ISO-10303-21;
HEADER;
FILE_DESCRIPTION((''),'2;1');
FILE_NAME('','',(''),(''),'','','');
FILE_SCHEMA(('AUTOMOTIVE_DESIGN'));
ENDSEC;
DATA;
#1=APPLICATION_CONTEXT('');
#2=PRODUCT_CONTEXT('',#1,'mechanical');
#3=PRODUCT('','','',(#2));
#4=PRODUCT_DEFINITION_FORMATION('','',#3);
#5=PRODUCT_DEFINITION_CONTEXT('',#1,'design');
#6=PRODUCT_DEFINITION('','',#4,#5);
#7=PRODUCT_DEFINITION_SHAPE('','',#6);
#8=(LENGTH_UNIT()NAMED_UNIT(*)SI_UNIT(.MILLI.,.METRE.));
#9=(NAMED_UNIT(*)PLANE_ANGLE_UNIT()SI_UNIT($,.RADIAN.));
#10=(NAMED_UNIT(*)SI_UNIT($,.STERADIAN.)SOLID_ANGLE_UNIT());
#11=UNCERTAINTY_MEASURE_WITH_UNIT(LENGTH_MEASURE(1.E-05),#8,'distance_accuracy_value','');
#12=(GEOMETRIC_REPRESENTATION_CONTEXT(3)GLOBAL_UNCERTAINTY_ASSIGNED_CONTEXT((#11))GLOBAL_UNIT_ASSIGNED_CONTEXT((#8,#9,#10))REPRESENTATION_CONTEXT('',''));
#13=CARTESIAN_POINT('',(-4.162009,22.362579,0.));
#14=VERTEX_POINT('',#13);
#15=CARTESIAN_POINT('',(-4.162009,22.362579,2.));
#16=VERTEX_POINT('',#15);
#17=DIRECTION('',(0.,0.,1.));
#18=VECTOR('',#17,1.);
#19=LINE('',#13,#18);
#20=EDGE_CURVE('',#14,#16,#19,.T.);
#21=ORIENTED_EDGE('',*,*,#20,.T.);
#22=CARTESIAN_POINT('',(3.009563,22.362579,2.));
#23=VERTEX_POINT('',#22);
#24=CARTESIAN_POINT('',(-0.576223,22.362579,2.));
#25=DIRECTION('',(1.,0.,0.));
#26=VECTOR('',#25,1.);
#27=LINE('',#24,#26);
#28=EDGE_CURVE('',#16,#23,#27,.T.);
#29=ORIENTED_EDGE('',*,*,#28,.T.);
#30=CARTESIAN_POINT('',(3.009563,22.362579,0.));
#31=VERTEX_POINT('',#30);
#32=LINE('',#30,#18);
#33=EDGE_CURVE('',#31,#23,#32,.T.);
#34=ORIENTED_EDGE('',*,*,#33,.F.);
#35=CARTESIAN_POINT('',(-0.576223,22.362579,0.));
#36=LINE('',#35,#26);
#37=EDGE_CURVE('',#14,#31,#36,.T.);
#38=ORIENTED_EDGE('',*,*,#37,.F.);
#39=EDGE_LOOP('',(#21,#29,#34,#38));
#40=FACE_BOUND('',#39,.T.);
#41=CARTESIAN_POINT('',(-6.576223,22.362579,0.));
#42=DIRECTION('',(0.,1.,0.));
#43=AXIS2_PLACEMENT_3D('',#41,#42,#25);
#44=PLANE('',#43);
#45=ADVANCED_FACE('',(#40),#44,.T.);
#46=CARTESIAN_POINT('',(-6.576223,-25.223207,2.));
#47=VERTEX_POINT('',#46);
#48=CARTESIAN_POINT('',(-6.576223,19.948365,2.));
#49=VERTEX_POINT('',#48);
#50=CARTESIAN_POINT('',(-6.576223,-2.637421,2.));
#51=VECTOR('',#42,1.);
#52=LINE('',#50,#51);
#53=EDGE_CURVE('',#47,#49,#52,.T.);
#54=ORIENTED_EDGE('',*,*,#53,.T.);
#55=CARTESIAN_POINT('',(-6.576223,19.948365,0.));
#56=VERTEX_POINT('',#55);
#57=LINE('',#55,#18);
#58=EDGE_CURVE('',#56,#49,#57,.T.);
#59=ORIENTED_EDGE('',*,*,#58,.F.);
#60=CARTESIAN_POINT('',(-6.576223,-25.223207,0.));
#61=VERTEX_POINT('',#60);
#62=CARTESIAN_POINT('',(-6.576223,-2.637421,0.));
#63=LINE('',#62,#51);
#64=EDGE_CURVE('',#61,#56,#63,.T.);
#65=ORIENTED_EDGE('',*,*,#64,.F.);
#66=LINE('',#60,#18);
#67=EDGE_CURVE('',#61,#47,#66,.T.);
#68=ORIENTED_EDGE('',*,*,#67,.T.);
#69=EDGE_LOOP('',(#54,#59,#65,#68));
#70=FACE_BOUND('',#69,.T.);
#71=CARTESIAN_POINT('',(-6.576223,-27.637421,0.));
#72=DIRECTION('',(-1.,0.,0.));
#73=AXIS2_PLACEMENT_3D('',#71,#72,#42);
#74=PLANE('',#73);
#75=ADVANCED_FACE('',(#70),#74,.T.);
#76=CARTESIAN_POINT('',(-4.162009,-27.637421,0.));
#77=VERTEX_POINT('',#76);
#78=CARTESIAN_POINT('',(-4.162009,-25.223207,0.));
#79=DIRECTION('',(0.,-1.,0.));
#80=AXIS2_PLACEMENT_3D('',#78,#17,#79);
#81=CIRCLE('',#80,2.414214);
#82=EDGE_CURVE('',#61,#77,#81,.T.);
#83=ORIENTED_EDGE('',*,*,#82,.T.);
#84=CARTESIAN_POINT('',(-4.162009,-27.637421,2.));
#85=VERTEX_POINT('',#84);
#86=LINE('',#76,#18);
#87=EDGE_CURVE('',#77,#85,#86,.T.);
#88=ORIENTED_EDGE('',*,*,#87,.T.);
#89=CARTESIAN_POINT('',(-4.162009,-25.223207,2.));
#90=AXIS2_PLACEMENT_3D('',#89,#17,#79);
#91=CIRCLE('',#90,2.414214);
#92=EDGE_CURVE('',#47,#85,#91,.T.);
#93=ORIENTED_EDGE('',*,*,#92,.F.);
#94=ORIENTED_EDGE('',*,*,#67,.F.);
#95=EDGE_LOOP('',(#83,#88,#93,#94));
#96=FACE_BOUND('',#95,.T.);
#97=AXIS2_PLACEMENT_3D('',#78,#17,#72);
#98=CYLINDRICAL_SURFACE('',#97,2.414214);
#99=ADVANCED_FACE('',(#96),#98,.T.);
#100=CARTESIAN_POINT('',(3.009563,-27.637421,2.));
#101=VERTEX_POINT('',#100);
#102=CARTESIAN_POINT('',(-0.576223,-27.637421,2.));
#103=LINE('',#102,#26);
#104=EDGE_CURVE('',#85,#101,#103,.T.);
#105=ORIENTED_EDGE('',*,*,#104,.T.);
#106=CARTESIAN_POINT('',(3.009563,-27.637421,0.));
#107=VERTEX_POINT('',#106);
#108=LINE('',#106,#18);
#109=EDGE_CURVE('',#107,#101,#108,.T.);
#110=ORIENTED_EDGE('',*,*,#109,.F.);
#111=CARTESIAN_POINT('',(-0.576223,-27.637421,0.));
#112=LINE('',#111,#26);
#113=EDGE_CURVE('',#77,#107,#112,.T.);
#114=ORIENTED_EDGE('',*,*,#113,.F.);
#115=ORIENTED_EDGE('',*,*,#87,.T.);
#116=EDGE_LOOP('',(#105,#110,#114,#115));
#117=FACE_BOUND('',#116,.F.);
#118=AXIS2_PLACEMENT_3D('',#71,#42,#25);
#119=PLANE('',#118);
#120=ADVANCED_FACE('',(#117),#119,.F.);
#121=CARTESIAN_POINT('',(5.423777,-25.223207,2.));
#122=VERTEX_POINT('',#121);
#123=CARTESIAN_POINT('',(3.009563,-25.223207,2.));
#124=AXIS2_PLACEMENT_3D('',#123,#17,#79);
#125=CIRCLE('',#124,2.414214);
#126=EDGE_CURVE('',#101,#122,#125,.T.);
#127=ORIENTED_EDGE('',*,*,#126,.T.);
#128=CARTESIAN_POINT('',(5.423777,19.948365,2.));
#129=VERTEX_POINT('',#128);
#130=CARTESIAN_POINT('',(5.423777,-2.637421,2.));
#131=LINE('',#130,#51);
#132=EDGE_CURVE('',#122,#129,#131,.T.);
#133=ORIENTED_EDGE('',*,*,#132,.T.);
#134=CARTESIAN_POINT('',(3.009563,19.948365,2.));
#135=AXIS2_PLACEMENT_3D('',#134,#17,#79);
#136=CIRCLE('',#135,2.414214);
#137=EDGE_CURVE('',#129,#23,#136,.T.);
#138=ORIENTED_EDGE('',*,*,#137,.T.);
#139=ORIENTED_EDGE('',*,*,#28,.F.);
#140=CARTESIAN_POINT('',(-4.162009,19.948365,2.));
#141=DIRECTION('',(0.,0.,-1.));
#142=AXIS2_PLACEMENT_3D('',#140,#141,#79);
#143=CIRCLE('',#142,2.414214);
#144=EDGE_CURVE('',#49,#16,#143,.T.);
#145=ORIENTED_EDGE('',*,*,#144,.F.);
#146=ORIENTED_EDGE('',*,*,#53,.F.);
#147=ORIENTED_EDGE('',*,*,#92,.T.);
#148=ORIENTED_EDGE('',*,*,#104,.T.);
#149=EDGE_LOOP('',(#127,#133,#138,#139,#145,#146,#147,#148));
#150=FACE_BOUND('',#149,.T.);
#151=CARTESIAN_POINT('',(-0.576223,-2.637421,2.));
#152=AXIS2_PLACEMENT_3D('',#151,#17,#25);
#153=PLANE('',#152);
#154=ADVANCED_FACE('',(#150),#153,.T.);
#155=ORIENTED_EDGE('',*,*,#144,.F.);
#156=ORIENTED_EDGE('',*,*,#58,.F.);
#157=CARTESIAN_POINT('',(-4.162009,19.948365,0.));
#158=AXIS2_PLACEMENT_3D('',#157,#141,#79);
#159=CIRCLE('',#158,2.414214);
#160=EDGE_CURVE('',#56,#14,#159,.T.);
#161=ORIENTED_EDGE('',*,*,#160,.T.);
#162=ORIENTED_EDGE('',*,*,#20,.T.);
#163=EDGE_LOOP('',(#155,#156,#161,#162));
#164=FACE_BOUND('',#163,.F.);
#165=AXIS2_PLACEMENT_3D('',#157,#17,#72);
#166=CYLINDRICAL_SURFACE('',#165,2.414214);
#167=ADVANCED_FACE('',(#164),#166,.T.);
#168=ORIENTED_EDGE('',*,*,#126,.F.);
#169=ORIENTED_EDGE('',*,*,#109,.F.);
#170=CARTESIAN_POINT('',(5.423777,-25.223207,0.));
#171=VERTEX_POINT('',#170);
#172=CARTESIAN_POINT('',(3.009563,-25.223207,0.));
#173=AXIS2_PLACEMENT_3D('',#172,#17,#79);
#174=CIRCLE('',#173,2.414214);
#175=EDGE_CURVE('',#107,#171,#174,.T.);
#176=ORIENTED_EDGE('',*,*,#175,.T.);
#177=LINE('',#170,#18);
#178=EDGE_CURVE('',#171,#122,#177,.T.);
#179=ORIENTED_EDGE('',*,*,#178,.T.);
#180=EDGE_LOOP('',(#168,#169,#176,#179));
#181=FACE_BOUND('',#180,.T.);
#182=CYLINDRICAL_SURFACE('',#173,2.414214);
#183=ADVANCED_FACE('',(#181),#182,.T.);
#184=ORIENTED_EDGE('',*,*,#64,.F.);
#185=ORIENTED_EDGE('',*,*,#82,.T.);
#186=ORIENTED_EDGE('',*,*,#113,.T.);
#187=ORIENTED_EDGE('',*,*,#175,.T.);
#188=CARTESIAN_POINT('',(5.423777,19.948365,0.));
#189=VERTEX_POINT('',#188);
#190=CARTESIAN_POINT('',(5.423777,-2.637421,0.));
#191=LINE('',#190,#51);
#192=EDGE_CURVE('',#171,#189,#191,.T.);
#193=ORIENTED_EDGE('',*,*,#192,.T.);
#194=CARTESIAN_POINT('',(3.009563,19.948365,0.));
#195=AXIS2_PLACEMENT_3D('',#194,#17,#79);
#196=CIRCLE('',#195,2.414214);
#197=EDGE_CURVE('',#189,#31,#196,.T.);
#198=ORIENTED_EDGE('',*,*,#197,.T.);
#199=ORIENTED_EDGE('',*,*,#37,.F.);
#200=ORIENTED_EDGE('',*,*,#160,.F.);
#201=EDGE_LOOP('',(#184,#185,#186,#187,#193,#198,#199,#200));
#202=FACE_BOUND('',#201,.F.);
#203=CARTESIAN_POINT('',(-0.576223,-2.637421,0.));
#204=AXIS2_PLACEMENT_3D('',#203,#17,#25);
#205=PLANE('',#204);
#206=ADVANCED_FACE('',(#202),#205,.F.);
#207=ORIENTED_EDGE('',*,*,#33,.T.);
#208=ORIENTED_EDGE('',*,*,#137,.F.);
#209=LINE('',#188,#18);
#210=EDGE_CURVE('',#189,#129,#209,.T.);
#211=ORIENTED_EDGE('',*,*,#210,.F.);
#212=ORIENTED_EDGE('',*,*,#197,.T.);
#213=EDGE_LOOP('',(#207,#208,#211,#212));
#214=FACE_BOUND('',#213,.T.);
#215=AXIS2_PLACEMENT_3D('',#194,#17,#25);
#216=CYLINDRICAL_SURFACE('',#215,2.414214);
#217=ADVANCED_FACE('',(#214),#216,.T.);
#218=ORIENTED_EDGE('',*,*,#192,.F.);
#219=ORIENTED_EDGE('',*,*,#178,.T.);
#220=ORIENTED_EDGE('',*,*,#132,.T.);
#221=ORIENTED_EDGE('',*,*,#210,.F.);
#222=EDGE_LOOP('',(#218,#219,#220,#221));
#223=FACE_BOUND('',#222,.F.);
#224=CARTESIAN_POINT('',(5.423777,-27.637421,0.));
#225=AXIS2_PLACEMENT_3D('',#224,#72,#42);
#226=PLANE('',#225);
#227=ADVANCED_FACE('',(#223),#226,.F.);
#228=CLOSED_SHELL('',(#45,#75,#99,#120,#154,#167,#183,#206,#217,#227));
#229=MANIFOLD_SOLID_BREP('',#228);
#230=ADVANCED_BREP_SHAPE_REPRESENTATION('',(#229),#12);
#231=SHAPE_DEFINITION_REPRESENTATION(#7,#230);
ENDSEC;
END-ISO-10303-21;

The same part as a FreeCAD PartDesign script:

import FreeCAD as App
import Part
import Sketcher


def edges_at(feature, points):
    """Names of the edges that pass closest to the given points."""
    edges = feature.Shape.Edges
    near = lambda p: min(range(len(edges)), key=lambda i: edges[i].distToShape(Part.Vertex(*p))[0])
    return sorted({f"Edge{near(p) + 1}" for p in points})

doc = App.newDocument("Part")
params = doc.addObject("Spreadsheet::Sheet", "Params")
for row, (alias, value) in enumerate([
    ("sketch1_width", "12 mm"),
    ("sketch1_height", "50 mm"),
    ("pad1_length", "2 mm"),
    ("fillet_radius", "2.414214 mm"),
], start=1):
    params.set(f"A{row}", alias)
    params.set(f"B{row}", "=" + value)
    params.setAlias(f"B{row}", alias)

body = doc.addObject("PartDesign::Body", "Body")

# Sketch on XY plane
sketch1 = doc.addObject("Sketcher::SketchObject", "Sketch")
body.addObject(sketch1)
sketch1.AttachmentSupport = (doc.XY_Plane, [""])
sketch1.MapMode = "FlatFace"
sketch1.addGeometry(Part.LineSegment(App.Vector(-7, 22, 0), App.Vector(-7, -28, 0)), False)
sketch1.addGeometry(Part.LineSegment(App.Vector(-7, -28, 0), App.Vector(5, -28, 0)), False)
sketch1.addGeometry(Part.LineSegment(App.Vector(5, -28, 0), App.Vector(5, 22, 0)), False)
sketch1.addGeometry(Part.LineSegment(App.Vector(5, 22, 0), App.Vector(-7, 22, 0)), False)
sketch1.addConstraint(Sketcher.Constraint("Coincident", 0, 2, 1, 1))
sketch1.addConstraint(Sketcher.Constraint("Coincident", 1, 2, 2, 1))
sketch1.addConstraint(Sketcher.Constraint("Coincident", 2, 2, 3, 1))
sketch1.addConstraint(Sketcher.Constraint("Coincident", 3, 2, 0, 1))
sketch1.addConstraint(Sketcher.Constraint("Vertical", 0))
sketch1.addConstraint(Sketcher.Constraint("Horizontal", 1))
sketch1.addConstraint(Sketcher.Constraint("Vertical", 2))
sketch1.addConstraint(Sketcher.Constraint("Horizontal", 3))
sketch1.addConstraint(Sketcher.Constraint("DistanceX", 1, 1, 1, 2, 12.0))
sketch1.addConstraint(Sketcher.Constraint("DistanceY", 0, 2, 0, 1, 50.0))
sketch1.addConstraint(Sketcher.Constraint("DistanceY", 0, 2, -1, 1, 27.637421))
sketch1.addConstraint(Sketcher.Constraint("DistanceX", 0, 2, -1, 1, 6.576223))
sketch1.setExpression("Constraints[8]", "Params.sketch1_width")
sketch1.setExpression("Constraints[9]", "Params.sketch1_height")
pad1 = doc.addObject("PartDesign::Pad", "Pad")
body.addObject(pad1)
pad1.Profile = sketch1
pad1.setExpression("Length", "Params.pad1_length")
doc.recompute()

fillet = doc.addObject("PartDesign::Fillet", "Fillet")
body.addObject(fillet)
fillet.Base = (pad1, edges_at(pad1, [
    (-6.576, -27.637, 1),
    (5.424, -27.637, 1),
    (5.424, 22.363, 1),
    (-6.576, 22.363, 1),
]))
fillet.setExpression("Radius", "Params.fillet_radius")

doc.recompute()
